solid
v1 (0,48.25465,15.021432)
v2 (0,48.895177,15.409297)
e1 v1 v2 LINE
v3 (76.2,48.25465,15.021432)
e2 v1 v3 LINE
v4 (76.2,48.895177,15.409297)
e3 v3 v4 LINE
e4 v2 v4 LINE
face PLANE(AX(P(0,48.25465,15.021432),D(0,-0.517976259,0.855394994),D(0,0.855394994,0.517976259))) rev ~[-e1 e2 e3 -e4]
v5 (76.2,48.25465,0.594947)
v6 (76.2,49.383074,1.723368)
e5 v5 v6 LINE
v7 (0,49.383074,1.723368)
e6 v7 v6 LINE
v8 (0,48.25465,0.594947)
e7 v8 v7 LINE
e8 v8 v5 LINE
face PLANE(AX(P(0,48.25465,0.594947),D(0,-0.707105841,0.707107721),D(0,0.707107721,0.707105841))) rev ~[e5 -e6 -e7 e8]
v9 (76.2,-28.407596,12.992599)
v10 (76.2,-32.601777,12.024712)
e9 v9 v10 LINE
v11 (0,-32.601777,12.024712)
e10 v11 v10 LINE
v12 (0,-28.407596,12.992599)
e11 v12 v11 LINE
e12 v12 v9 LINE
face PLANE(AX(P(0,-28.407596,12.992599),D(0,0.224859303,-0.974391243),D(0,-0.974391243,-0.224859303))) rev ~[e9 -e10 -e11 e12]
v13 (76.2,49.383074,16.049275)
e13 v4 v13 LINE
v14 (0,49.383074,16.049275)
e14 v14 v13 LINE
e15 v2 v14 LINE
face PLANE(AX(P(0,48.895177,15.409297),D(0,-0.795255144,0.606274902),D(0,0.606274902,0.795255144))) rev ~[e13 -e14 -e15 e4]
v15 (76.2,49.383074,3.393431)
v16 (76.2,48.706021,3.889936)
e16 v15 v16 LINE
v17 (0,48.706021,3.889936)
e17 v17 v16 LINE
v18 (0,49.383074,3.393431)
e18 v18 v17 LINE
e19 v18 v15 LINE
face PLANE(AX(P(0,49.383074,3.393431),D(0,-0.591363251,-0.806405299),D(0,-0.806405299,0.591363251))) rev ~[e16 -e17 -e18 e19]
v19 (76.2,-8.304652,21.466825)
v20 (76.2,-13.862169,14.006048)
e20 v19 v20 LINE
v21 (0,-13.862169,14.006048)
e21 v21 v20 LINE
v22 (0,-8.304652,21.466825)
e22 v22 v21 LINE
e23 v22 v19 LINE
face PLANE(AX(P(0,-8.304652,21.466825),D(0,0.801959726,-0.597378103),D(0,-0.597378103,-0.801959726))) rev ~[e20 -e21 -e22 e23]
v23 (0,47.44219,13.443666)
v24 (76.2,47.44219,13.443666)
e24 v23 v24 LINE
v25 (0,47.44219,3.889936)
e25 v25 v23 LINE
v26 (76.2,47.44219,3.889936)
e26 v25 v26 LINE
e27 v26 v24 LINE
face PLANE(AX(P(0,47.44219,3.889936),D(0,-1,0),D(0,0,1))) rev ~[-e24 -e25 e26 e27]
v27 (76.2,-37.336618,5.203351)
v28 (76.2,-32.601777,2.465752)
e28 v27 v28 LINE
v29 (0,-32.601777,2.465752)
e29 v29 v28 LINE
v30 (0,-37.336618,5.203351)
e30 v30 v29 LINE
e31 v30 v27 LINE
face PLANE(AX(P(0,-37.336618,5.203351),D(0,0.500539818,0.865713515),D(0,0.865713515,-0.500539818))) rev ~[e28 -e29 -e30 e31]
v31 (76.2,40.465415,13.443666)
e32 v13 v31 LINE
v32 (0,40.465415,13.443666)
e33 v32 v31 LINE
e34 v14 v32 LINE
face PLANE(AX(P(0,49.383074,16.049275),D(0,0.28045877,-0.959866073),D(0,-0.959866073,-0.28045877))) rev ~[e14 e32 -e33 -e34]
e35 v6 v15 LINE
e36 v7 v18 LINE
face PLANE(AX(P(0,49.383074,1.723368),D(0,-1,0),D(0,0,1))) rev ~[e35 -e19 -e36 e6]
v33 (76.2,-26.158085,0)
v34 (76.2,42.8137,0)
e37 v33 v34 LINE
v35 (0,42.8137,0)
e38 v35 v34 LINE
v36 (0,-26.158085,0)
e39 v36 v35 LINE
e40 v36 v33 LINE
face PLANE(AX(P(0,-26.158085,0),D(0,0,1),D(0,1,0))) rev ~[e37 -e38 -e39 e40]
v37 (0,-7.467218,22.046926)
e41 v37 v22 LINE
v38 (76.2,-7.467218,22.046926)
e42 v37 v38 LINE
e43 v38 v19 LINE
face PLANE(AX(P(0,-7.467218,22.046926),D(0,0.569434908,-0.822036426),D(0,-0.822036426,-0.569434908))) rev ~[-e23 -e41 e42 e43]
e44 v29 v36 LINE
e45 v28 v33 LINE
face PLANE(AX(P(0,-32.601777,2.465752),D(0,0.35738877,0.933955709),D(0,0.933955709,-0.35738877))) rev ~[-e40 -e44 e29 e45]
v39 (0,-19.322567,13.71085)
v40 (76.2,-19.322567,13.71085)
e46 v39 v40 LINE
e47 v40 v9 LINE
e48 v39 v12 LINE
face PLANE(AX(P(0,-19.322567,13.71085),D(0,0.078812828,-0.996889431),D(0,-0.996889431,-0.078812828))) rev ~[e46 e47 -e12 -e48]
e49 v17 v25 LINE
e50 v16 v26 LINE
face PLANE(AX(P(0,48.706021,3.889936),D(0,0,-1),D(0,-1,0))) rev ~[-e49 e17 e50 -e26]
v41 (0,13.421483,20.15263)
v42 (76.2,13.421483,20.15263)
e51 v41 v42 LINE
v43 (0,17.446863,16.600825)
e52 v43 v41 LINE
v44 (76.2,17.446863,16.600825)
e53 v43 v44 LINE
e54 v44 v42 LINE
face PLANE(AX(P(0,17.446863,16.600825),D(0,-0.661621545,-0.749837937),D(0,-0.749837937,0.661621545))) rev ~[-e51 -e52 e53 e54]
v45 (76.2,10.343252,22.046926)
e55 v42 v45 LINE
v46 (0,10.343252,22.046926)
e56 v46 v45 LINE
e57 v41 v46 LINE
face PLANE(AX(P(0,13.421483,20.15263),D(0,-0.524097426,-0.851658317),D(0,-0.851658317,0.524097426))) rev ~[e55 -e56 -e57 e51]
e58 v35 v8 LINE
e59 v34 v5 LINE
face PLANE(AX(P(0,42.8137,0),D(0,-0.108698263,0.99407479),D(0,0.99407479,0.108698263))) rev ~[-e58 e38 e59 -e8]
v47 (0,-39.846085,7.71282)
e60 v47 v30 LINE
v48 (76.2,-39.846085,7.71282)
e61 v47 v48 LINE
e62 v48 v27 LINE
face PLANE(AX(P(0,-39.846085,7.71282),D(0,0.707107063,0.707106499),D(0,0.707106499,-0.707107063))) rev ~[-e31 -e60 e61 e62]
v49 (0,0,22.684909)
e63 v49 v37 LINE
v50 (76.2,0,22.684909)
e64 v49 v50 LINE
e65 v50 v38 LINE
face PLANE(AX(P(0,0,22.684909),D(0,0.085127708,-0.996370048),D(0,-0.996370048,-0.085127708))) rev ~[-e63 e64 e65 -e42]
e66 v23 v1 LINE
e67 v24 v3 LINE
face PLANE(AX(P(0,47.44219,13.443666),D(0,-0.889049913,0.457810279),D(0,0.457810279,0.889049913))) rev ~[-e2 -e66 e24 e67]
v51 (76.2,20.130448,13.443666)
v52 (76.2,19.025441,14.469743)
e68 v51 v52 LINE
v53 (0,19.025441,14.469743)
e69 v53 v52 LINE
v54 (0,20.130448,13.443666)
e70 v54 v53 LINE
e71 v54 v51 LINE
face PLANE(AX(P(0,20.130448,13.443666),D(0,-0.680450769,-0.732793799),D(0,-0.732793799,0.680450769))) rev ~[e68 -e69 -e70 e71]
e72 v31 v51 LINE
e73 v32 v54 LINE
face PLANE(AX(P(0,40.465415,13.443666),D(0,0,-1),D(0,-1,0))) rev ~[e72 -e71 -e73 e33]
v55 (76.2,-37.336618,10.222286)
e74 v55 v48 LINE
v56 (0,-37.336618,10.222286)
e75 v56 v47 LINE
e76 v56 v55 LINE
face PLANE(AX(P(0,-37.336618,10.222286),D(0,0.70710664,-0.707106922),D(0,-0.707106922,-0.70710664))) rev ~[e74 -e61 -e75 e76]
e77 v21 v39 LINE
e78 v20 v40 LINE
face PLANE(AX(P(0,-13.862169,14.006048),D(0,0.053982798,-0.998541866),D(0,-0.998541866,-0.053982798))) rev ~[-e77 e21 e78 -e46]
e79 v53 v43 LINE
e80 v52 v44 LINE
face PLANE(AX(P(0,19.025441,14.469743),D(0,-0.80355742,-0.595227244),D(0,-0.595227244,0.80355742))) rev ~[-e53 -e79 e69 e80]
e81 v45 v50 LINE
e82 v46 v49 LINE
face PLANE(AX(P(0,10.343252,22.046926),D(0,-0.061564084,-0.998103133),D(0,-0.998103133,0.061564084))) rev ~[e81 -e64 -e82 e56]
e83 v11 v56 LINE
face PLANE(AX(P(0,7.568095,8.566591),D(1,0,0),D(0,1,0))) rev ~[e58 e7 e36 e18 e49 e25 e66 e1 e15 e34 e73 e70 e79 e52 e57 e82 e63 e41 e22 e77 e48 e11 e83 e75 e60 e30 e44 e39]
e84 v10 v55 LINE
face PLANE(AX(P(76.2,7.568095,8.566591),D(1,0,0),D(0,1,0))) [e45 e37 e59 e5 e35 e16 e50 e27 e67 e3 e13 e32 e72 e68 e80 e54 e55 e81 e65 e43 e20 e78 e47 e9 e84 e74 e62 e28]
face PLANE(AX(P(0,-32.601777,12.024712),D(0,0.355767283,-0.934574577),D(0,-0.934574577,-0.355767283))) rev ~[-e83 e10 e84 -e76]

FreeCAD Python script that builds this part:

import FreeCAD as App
import Part
import Sketcher

V = App.Vector
Q = App.Units.Quantity

doc = App.newDocument("Part")
body = doc.addObject("PartDesign::Body", "Body")

# Sketch on YZ plane
sketch1 = doc.addObject("Sketcher::SketchObject", "Sketch")
body.addObject(sketch1)
sketch1.AttachmentSupport = (doc.YZ_Plane, [""])
sketch1.MapMode = "FlatFace"
sketch1.addGeometry([
    Part.LineSegment(V(-26.2, 0, 0), V(42.8, 0, 0)),  # 0
    Part.LineSegment(V(42.8, 0, 0), V(48.3, 0.6, 0)),  # 1
    Part.LineSegment(V(48.3, 0.6, 0), V(49.4, 1.7, 0)),  # 2
    Part.LineSegment(V(49.4, 1.7, 0), V(49.4, 3.4, 0)),  # 3
    Part.LineSegment(V(49.4, 3.4, 0), V(48.7, 3.9, 0)),  # 4
    Part.LineSegment(V(48.7, 3.9, 0), V(47.4, 3.9, 0)),  # 5
    Part.LineSegment(V(47.4, 3.9, 0), V(47.4, 13.4, 0)),  # 6
    Part.LineSegment(V(47.4, 13.4, 0), V(48.3, 15, 0)),  # 7
    Part.LineSegment(V(48.3, 15, 0), V(48.9, 15.4, 0)),  # 8
    Part.LineSegment(V(48.9, 15.4, 0), V(49.4, 16, 0)),  # 9
    Part.LineSegment(V(49.4, 16, 0), V(40.5, 13.4, 0)),  # 10
    Part.LineSegment(V(40.5, 13.4, 0), V(20.1, 13.4, 0)),  # 11
    Part.LineSegment(V(20.1, 13.4, 0), V(19, 14.5, 0)),  # 12
    Part.LineSegment(V(19, 14.5, 0), V(17.4, 16.6, 0)),  # 13
    Part.LineSegment(V(17.4, 16.6, 0), V(13.4, 20.2, 0)),  # 14
    Part.LineSegment(V(13.4, 20.2, 0), V(10.3, 22, 0)),  # 15
    Part.LineSegment(V(10.3, 22, 0), V(0, 22.7, 0)),  # 16
    Part.LineSegment(V(0, 22.7, 0), V(-7.5, 22, 0)),  # 17
    Part.LineSegment(V(-7.5, 22, 0), V(-8.3, 21.5, 0)),  # 18
    Part.LineSegment(V(-8.3, 21.5, 0), V(-13.9, 14, 0)),  # 19
    Part.LineSegment(V(-13.9, 14, 0), V(-19.3, 13.7, 0)),  # 20
    Part.LineSegment(V(-19.3, 13.7, 0), V(-28.4, 13, 0)),  # 21
    Part.LineSegment(V(-28.4, 13, 0), V(-32.6, 12, 0)),  # 22
    Part.LineSegment(V(-32.6, 12, 0), V(-37.3, 10.2, 0)),  # 23
    Part.LineSegment(V(-37.3, 10.2, 0), V(-39.8, 7.7, 0)),  # 24
    Part.LineSegment(V(-39.8, 7.7, 0), V(-37.3, 5.2, 0)),  # 25
    Part.LineSegment(V(-37.3, 5.2, 0), V(-32.6, 2.5, 0)),  # 26
    Part.LineSegment(V(-32.6, 2.5, 0), V(-26.2, 0, 0)),  # 27
], False)
sketch1.addConstraint([
    Sketcher.Constraint("Coincident", 0, 2, 1, 1),
    Sketcher.Constraint("Coincident", 1, 2, 2, 1),
    Sketcher.Constraint("Coincident", 2, 2, 3, 1),
    Sketcher.Constraint("Coincident", 3, 2, 4, 1),
    Sketcher.Constraint("Coincident", 4, 2, 5, 1),
    Sketcher.Constraint("Coincident", 5, 2, 6, 1),
    Sketcher.Constraint("Coincident", 6, 2, 7, 1),
    Sketcher.Constraint("Coincident", 7, 2, 8, 1),
    Sketcher.Constraint("Coincident", 8, 2, 9, 1),
    Sketcher.Constraint("Coincident", 9, 2, 10, 1),
    Sketcher.Constraint("Coincident", 10, 2, 11, 1),
    Sketcher.Constraint("Coincident", 11, 2, 12, 1),
    Sketcher.Constraint("Coincident", 12, 2, 13, 1),
    Sketcher.Constraint("Coincident", 13, 2, 14, 1),
    Sketcher.Constraint("Coincident", 14, 2, 15, 1),
    Sketcher.Constraint("Coincident", 15, 2, 16, 1),
    Sketcher.Constraint("Coincident", 16, 2, 17, 1),
    Sketcher.Constraint("Coincident", 17, 2, 18, 1),
    Sketcher.Constraint("Coincident", 18, 2, 19, 1),
    Sketcher.Constraint("Coincident", 19, 2, 20, 1),
    Sketcher.Constraint("Coincident", 20, 2, 21, 1),
    Sketcher.Constraint("Coincident", 21, 2, 22, 1),
    Sketcher.Constraint("Coincident", 22, 2, 23, 1),
    Sketcher.Constraint("Coincident", 23, 2, 24, 1),
    Sketcher.Constraint("Coincident", 24, 2, 25, 1),
    Sketcher.Constraint("Coincident", 25, 2, 26, 1),
    Sketcher.Constraint("Coincident", 26, 2, 27, 1),
    Sketcher.Constraint("Coincident", 27, 2, 0, 1),
    Sketcher.Constraint("Horizontal", 0),
    Sketcher.Constraint("Vertical", 3),
    Sketcher.Constraint("Horizontal", 5),
    Sketcher.Constraint("Vertical", 6),
    Sketcher.Constraint("Horizontal", 11),
    Sketcher.Constraint("PointOnObject", 0, 2, -1),
    Sketcher.Constraint("PointOnObject", 16, 2, -2),
    Sketcher.Constraint("Parallel", 2, 24),
    Sketcher.Constraint("Perpendicular", 24, 25),
    Sketcher.Constraint("Horizontal", 6, 2, 10, 2),
    Sketcher.Constraint("Horizontal", 15, 2, 17, 2),
    Sketcher.Constraint("Vertical", 1, 2, 7, 2),
    Sketcher.Constraint("Vertical", 3, 2, 9, 2),
    Sketcher.Constraint("Vertical", 23, 2, 25, 2),
    Sketcher.Constraint("Vertical", 22, 2, 26, 2),
    Sketcher.Constraint("Angle", 24, Q("-135.000011 deg")),
    Sketcher.Constraint("DistanceX", 19, 2, 18, 2, Q("0.2187999 in")),
    Sketcher.Constraint("DistanceX", 5, 2, 5, 1, 1.263831),
    Sketcher.Constraint("DistanceY", 6, 1, 6, 2, 9.55373),
    Sketcher.Constraint("DistanceX", -1, 1, 0, 2, 42.8137),
    Sketcher.Constraint("DistanceY", -1, 1, 21, 2, 12.992599),
    Sketcher.Constraint("DistanceY", 3, 2, 7, 2, 11.628001),
    Sketcher.Constraint("DistanceX", 11, 2, 7, 2, 28.124202),
    Sketcher.Constraint("DistanceY", 13, 2, 15, 2, 5.446101),
    Sketcher.Constraint("DistanceX", 17, 2, 14, 2, 20.888701),
    Sketcher.Constraint("DistanceY", 18, 2, 17, 2, 0.580101),
    Sketcher.Constraint("DistanceY", 25, 2, 20, 2, 8.507499),
    Sketcher.Constraint("DistanceY", 26, 2, 25, 2, 2.737599),
    Sketcher.Constraint("Distance", 1, 5.473381),
    Sketcher.Constraint("Distance", 2, 1.59583),
    Sketcher.Constraint("Distance", 8, 0.748808),
    Sketcher.Constraint("Distance", 13, 2.652059),
    Sketcher.Constraint("Distance", 16, 10.362909),
    Sketcher.Constraint("Distance", 18, 1.018731),
    Sketcher.Constraint("Distance", 19, 9.303182),
    Sketcher.Constraint("Distance", 20, 5.468372),
    Sketcher.Constraint("Distance", 22, 4.304412),
    Sketcher.Constraint("Distance", 24, 3.548922),
    Sketcher.Constraint("DistanceX", 0, 1, 0, 2, 68.971785),
    Sketcher.Constraint("DistanceX", 11, 2, 11, 1, 20.334967),
    Sketcher.Constraint("DistanceY", 3, 1, 3, 2, 1.670063),
    Sketcher.Constraint("DistanceX", -1, 1, 1, 2, 48.25465),
    Sketcher.Constraint("DistanceX", -1, 1, 4, 2, 48.706021),
    Sketcher.Constraint("DistanceX", -1, 1, 12, 2, 19.025441),
    Sketcher.Constraint("DistanceY", -1, 1, 14, 2, 20.15263),
    Sketcher.Constraint("DistanceY", -1, 1, 16, 2, 22.684909),
    Sketcher.Constraint("DistanceX", 19, 2, -1, 1, 13.862169),
    Sketcher.Constraint("DistanceY", -1, 1, 20, 2, 13.71085),
    Sketcher.Constraint("DistanceY", -1, 1, 22, 2, 12.024712),
    Sketcher.Constraint("DistanceY", 1, 2, 4, 2, 3.294989),
    Sketcher.Constraint("DistanceY", 6, 2, 8, 2, 1.965631),
    Sketcher.Constraint("DistanceY", 8, 2, 9, 2, 0.639978),
    Sketcher.Constraint("DistanceY", 12, 2, 7, 2, 0.551689),
    Sketcher.Constraint("DistanceX", 13, 2, 12, 2, 1.578578),
    Sketcher.Constraint("DistanceX", 21, 2, 20, 2, 9.085029),
    Sketcher.Constraint("DistanceX", 23, 2, 22, 2, 4.734841),
])
pad1 = doc.addObject("PartDesign::Pad", "Pad")
body.addObject(pad1)
pad1.Profile = sketch1
pad1.Length = Q("3 in")

doc.recompute()
